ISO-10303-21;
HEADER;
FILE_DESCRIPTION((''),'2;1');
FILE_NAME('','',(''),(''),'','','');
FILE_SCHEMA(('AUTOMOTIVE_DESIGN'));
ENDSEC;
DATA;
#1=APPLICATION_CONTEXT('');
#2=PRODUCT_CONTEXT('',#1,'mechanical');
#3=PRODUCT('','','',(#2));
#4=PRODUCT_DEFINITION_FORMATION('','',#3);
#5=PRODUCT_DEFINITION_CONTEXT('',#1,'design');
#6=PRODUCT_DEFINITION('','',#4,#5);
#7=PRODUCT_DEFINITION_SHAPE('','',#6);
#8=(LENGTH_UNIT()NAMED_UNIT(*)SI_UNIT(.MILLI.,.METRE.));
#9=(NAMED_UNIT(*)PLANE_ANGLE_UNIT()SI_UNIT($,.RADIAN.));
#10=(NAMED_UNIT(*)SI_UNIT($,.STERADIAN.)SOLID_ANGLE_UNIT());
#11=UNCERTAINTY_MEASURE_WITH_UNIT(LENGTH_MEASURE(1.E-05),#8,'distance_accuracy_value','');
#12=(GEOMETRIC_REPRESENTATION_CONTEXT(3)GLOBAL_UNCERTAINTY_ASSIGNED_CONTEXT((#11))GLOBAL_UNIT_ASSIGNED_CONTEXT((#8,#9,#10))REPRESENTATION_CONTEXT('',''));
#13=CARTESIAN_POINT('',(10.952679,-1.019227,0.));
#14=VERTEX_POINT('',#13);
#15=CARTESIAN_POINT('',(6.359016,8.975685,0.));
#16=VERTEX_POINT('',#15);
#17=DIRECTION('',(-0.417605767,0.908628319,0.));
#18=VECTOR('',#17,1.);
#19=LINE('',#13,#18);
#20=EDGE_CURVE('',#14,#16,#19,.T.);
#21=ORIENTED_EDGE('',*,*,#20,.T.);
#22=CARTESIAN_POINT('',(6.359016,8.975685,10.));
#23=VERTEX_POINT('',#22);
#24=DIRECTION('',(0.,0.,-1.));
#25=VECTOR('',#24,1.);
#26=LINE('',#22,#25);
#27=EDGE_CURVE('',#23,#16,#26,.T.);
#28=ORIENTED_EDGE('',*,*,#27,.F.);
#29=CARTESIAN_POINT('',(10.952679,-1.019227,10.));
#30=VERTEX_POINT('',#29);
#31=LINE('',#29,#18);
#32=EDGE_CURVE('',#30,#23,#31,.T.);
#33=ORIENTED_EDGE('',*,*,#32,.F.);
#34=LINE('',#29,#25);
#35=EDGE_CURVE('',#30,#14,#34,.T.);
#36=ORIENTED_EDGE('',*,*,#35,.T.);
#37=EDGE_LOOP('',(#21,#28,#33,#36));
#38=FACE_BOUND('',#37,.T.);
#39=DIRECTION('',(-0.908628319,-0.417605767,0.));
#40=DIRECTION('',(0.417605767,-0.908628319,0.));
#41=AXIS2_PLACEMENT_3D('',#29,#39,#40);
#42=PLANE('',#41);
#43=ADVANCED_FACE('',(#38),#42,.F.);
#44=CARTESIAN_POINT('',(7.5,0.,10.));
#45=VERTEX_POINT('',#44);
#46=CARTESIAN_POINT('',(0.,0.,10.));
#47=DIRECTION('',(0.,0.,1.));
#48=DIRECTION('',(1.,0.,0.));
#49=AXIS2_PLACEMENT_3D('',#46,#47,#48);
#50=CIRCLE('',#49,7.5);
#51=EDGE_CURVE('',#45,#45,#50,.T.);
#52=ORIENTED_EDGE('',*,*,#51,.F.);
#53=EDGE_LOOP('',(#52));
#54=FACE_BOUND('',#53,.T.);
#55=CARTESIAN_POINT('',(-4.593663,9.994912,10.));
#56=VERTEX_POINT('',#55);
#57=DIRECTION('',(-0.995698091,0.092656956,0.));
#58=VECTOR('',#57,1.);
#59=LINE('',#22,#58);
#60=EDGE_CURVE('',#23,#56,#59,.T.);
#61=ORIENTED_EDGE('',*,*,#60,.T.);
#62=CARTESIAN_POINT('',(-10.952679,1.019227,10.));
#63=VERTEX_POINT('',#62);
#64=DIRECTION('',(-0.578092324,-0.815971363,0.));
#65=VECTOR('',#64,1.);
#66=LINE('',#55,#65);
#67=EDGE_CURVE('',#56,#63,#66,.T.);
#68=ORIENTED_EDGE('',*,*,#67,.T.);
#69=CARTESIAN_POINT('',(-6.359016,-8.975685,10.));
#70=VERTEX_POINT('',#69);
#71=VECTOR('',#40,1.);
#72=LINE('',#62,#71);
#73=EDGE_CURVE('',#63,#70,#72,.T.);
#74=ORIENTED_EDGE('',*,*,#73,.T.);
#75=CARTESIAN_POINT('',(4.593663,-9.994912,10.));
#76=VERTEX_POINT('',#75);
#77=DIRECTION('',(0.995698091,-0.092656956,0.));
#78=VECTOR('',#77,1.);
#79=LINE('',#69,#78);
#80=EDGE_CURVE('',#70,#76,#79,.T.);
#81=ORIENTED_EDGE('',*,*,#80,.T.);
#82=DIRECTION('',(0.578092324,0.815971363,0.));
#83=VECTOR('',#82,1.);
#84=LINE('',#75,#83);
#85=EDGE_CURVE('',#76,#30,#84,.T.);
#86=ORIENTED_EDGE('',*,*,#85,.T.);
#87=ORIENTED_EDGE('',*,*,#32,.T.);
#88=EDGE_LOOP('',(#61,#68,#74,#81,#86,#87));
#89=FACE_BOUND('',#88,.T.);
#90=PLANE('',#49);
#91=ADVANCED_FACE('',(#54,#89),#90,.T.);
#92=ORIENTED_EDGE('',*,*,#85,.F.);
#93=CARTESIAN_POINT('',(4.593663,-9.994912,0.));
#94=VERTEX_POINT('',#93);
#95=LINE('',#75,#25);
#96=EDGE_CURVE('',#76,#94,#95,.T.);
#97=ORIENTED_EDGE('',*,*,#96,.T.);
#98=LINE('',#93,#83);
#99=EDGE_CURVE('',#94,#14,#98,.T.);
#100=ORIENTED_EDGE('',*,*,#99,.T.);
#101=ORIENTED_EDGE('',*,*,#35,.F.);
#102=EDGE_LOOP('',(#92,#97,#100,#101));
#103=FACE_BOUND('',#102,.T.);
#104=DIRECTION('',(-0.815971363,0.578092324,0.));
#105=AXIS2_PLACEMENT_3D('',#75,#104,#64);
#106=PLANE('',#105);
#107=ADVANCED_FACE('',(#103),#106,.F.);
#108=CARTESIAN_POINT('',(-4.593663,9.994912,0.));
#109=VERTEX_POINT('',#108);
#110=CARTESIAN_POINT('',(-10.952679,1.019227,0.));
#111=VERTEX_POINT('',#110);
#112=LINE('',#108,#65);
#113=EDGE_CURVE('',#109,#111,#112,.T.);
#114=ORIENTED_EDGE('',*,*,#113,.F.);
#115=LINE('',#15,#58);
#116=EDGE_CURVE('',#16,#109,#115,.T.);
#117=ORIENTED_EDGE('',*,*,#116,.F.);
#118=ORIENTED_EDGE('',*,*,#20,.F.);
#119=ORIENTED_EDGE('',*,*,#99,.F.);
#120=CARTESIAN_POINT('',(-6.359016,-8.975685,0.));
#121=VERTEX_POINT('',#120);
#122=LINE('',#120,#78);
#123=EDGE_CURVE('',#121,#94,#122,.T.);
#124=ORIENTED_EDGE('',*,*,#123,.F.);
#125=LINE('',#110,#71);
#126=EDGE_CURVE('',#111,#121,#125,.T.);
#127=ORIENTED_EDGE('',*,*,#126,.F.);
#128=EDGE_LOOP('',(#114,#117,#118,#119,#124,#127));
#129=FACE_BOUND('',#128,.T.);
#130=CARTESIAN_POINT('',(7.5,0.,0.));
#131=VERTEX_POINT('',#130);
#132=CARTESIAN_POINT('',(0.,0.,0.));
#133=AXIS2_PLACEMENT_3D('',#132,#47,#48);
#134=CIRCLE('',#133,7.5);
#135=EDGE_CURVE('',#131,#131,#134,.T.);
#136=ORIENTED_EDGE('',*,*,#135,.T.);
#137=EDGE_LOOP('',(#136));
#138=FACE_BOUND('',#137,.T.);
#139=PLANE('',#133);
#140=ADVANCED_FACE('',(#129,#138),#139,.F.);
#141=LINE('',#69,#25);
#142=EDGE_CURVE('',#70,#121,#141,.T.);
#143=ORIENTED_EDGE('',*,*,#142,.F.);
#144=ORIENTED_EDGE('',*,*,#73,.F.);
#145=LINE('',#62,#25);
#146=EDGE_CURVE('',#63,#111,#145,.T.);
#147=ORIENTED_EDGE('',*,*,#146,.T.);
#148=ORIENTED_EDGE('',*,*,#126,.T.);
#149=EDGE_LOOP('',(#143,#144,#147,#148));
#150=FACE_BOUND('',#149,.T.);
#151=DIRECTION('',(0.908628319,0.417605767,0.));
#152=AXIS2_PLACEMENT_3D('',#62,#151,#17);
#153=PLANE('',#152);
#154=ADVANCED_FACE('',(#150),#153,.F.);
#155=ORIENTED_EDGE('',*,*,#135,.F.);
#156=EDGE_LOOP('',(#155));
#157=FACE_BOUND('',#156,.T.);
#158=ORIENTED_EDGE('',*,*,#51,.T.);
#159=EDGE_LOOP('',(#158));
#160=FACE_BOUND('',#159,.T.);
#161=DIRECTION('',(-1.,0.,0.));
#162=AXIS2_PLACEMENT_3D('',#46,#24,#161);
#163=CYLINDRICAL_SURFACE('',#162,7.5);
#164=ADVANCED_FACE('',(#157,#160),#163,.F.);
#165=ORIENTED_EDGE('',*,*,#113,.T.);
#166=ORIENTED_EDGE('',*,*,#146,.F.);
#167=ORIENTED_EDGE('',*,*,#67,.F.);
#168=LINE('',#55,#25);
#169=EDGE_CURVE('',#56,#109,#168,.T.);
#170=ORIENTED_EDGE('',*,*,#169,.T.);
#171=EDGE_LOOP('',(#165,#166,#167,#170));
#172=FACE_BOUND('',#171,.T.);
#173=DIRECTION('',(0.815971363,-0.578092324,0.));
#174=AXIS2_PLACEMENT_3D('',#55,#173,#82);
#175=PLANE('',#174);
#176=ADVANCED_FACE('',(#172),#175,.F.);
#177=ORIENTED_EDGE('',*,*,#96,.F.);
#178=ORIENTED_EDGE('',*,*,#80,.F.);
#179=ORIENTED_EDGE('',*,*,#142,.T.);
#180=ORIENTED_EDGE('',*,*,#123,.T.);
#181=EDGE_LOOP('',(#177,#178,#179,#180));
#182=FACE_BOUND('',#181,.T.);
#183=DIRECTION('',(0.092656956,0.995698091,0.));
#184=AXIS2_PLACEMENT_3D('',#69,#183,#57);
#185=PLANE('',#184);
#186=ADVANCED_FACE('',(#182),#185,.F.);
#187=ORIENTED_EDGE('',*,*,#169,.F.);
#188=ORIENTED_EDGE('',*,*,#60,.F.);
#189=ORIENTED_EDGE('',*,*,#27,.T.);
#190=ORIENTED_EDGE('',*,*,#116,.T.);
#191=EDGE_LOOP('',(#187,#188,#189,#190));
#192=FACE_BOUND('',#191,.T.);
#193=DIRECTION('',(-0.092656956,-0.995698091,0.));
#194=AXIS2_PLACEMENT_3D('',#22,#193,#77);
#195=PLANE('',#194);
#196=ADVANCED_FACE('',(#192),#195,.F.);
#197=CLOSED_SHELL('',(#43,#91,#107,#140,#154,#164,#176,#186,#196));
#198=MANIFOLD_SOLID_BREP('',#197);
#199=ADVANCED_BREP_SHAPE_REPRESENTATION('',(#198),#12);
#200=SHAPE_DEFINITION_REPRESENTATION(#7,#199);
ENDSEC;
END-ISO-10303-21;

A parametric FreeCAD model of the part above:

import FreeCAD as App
import Part
import Sketcher
from FreeCAD import Vector


def add_polygon(sketch, points):
    """Adds a closed chain of lines whose ends are joined by coincident constraints."""
    first, n = sketch.GeometryCount, len(points)
    for a, b in zip(points, points[1:] + points[:1]):
        sketch.addGeometry(Part.LineSegment(App.Vector(*a, 0), App.Vector(*b, 0)), False)
    for i in range(n):
        sketch.addConstraint(Sketcher.Constraint("Coincident", first + i, 2, first + (i + 1) % n, 1))

doc = App.newDocument("Part")
body = doc.addObject("PartDesign::Body", "Body")

# Sketch on XY plane
sketch1 = body.newObject("Sketcher::SketchObject", "Sketch")
sketch1.AttachmentSupport = (doc.getObject("XY_Plane"), [""])
sketch1.MapMode = "FlatFace"
add_polygon(sketch1, [(6, 9), (-5, 10), (-11, 1), (-6, -9), (5, -10), (11, -1)])  # lines 0-5
sketch1.addGeometry(Part.Circle(Vector(0, 0, 0), Vector(0, 0, 1), 8), False)  # 6
sketch1.addConstraint([
    Sketcher.Constraint("Coincident", 6, 3, -1, 1),
    Sketcher.Constraint("Symmetric", 0, 2, 3, 2, -1, 1),
    Sketcher.Constraint("Symmetric", 1, 2, 4, 2, -1, 1),
    Sketcher.Constraint("Symmetric", 2, 2, 5, 2, -1, 1),
    Sketcher.Constraint("Equal", 0, 1),
    Sketcher.Constraint("Equal", 1, 2),
    Sketcher.Constraint("Diameter", 6, 15.0),
    Sketcher.Constraint("Distance", 0, 11.0),
    Sketcher.Constraint("DistanceY", -1, 1, 0, 2, 9.994912),
    Sketcher.Constraint("DistanceX", 1, 2, -1, 1, 10.952679),
    Sketcher.Constraint("DistanceY", 2, 2, 1, 2, 9.994912),
])
pad1 = body.newObject("PartDesign::Pad", "Pad")
pad1.Profile = sketch1
pad1.Length = 10

doc.recompute()
